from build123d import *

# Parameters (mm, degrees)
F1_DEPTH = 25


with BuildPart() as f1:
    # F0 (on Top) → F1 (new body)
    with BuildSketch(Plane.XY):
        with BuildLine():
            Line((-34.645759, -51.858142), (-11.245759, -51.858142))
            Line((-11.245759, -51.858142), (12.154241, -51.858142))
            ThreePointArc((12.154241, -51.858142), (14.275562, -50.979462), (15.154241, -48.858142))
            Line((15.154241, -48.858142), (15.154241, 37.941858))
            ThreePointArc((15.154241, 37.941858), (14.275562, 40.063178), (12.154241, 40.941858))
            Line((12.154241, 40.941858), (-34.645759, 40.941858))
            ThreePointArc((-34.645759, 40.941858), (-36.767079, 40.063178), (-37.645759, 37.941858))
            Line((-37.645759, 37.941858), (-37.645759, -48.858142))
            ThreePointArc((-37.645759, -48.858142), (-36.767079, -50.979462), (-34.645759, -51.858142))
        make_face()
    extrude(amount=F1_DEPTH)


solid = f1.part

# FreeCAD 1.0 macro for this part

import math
import FreeCAD as App
import Part
import Sketcher
from FreeCAD import Vector

doc = App.newDocument("Part")
body = doc.addObject("PartDesign::Body", "Body")

# Sketch on XY plane
sketch1 = body.newObject("Sketcher::SketchObject", "Sketch")
sketch1.AttachmentSupport = (doc.getObject("XY_Plane"), [""])
sketch1.MapMode = "FlatFace"
sketch1.addGeometry(Part.LineSegment(Vector(-34.6, -51.9, 0), Vector(12.2, -51.9, 0)), False)
sketch1.addGeometry(Part.ArcOfCircle(Part.Circle(Vector(12.2, -48.9, 0), Vector(0, 0, 1), 3), math.radians(-90), math.radians(0)), False)
sketch1.addGeometry(Part.LineSegment(Vector(15.2, -48.9, 0), Vector(15.2, 37.9, 0)), False)
sketch1.addGeometry(Part.ArcOfCircle(Part.Circle(Vector(12.2, 37.9, 0), Vector(0, 0, 1), 3), math.radians(0), math.radians(90)), False)
sketch1.addGeometry(Part.LineSegment(Vector(12.2, 40.9, 0), Vector(-34.6, 40.9, 0)), False)
sketch1.addGeometry(Part.ArcOfCircle(Part.Circle(Vector(-34.6, 37.9, 0), Vector(0, 0, 1), 3), math.radians(90), math.radians(180)), False)
sketch1.addGeometry(Part.LineSegment(Vector(-37.6, 37.9, 0), Vector(-37.6, -48.9, 0)), False)
sketch1.addGeometry(Part.ArcOfCircle(Part.Circle(Vector(-34.6, -48.9, 0), Vector(0, 0, 1), 3), math.radians(-180), math.radians(-90)), False)
sketch1.addConstraint(Sketcher.Constraint("Tangent", 0, 2, 1, 1))
sketch1.addConstraint(Sketcher.Constraint("Tangent", 1, 2, 2, 1))
sketch1.addConstraint(Sketcher.Constraint("Tangent", 2, 2, 3, 1))
sketch1.addConstraint(Sketcher.Constraint("Tangent", 3, 2, 4, 1))
sketch1.addConstraint(Sketcher.Constraint("Tangent", 4, 2, 5, 1))
sketch1.addConstraint(Sketcher.Constraint("Tangent", 5, 2, 6, 1))
sketch1.addConstraint(Sketcher.Constraint("Tangent", 6, 2, 7, 1))
sketch1.addConstraint(Sketcher.Constraint("Tangent", 7, 2, 0, 1))
sketch1.addConstraint(Sketcher.Constraint("Horizontal", 0))
sketch1.addConstraint(Sketcher.Constraint("Vertical", 2))
sketch1.addConstraint(Sketcher.Constraint("Horizontal", 4))
sketch1.addConstraint(Sketcher.Constraint("Vertical", 6))
sketch1.addConstraint(Sketcher.Constraint("Equal", 1, 3))
sketch1.addConstraint(Sketcher.Constraint("Equal", 3, 5))
sketch1.addConstraint(Sketcher.Constraint("Equal", 5, 7))
sketch1.addConstraint(Sketcher.Constraint("Radius", 1, 2.999999))
sketch1.addConstraint(Sketcher.Constraint("DistanceX", 0, 1, 0, 2, 46.8))
sketch1.addConstraint(Sketcher.Constraint("DistanceY", 2, 1, 2, 2, 86.8))
sketch1.addConstraint(Sketcher.Constraint("DistanceX", -1, 1, 1, 3, 12.154242))
sketch1.addConstraint(Sketcher.Constraint("DistanceY", -1, 1, 3, 3, 37.941859))
pad1 = body.newObject("PartDesign::Pad", "Pad")
pad1.Profile = sketch1
pad1.Length = 25

doc.recompute()
